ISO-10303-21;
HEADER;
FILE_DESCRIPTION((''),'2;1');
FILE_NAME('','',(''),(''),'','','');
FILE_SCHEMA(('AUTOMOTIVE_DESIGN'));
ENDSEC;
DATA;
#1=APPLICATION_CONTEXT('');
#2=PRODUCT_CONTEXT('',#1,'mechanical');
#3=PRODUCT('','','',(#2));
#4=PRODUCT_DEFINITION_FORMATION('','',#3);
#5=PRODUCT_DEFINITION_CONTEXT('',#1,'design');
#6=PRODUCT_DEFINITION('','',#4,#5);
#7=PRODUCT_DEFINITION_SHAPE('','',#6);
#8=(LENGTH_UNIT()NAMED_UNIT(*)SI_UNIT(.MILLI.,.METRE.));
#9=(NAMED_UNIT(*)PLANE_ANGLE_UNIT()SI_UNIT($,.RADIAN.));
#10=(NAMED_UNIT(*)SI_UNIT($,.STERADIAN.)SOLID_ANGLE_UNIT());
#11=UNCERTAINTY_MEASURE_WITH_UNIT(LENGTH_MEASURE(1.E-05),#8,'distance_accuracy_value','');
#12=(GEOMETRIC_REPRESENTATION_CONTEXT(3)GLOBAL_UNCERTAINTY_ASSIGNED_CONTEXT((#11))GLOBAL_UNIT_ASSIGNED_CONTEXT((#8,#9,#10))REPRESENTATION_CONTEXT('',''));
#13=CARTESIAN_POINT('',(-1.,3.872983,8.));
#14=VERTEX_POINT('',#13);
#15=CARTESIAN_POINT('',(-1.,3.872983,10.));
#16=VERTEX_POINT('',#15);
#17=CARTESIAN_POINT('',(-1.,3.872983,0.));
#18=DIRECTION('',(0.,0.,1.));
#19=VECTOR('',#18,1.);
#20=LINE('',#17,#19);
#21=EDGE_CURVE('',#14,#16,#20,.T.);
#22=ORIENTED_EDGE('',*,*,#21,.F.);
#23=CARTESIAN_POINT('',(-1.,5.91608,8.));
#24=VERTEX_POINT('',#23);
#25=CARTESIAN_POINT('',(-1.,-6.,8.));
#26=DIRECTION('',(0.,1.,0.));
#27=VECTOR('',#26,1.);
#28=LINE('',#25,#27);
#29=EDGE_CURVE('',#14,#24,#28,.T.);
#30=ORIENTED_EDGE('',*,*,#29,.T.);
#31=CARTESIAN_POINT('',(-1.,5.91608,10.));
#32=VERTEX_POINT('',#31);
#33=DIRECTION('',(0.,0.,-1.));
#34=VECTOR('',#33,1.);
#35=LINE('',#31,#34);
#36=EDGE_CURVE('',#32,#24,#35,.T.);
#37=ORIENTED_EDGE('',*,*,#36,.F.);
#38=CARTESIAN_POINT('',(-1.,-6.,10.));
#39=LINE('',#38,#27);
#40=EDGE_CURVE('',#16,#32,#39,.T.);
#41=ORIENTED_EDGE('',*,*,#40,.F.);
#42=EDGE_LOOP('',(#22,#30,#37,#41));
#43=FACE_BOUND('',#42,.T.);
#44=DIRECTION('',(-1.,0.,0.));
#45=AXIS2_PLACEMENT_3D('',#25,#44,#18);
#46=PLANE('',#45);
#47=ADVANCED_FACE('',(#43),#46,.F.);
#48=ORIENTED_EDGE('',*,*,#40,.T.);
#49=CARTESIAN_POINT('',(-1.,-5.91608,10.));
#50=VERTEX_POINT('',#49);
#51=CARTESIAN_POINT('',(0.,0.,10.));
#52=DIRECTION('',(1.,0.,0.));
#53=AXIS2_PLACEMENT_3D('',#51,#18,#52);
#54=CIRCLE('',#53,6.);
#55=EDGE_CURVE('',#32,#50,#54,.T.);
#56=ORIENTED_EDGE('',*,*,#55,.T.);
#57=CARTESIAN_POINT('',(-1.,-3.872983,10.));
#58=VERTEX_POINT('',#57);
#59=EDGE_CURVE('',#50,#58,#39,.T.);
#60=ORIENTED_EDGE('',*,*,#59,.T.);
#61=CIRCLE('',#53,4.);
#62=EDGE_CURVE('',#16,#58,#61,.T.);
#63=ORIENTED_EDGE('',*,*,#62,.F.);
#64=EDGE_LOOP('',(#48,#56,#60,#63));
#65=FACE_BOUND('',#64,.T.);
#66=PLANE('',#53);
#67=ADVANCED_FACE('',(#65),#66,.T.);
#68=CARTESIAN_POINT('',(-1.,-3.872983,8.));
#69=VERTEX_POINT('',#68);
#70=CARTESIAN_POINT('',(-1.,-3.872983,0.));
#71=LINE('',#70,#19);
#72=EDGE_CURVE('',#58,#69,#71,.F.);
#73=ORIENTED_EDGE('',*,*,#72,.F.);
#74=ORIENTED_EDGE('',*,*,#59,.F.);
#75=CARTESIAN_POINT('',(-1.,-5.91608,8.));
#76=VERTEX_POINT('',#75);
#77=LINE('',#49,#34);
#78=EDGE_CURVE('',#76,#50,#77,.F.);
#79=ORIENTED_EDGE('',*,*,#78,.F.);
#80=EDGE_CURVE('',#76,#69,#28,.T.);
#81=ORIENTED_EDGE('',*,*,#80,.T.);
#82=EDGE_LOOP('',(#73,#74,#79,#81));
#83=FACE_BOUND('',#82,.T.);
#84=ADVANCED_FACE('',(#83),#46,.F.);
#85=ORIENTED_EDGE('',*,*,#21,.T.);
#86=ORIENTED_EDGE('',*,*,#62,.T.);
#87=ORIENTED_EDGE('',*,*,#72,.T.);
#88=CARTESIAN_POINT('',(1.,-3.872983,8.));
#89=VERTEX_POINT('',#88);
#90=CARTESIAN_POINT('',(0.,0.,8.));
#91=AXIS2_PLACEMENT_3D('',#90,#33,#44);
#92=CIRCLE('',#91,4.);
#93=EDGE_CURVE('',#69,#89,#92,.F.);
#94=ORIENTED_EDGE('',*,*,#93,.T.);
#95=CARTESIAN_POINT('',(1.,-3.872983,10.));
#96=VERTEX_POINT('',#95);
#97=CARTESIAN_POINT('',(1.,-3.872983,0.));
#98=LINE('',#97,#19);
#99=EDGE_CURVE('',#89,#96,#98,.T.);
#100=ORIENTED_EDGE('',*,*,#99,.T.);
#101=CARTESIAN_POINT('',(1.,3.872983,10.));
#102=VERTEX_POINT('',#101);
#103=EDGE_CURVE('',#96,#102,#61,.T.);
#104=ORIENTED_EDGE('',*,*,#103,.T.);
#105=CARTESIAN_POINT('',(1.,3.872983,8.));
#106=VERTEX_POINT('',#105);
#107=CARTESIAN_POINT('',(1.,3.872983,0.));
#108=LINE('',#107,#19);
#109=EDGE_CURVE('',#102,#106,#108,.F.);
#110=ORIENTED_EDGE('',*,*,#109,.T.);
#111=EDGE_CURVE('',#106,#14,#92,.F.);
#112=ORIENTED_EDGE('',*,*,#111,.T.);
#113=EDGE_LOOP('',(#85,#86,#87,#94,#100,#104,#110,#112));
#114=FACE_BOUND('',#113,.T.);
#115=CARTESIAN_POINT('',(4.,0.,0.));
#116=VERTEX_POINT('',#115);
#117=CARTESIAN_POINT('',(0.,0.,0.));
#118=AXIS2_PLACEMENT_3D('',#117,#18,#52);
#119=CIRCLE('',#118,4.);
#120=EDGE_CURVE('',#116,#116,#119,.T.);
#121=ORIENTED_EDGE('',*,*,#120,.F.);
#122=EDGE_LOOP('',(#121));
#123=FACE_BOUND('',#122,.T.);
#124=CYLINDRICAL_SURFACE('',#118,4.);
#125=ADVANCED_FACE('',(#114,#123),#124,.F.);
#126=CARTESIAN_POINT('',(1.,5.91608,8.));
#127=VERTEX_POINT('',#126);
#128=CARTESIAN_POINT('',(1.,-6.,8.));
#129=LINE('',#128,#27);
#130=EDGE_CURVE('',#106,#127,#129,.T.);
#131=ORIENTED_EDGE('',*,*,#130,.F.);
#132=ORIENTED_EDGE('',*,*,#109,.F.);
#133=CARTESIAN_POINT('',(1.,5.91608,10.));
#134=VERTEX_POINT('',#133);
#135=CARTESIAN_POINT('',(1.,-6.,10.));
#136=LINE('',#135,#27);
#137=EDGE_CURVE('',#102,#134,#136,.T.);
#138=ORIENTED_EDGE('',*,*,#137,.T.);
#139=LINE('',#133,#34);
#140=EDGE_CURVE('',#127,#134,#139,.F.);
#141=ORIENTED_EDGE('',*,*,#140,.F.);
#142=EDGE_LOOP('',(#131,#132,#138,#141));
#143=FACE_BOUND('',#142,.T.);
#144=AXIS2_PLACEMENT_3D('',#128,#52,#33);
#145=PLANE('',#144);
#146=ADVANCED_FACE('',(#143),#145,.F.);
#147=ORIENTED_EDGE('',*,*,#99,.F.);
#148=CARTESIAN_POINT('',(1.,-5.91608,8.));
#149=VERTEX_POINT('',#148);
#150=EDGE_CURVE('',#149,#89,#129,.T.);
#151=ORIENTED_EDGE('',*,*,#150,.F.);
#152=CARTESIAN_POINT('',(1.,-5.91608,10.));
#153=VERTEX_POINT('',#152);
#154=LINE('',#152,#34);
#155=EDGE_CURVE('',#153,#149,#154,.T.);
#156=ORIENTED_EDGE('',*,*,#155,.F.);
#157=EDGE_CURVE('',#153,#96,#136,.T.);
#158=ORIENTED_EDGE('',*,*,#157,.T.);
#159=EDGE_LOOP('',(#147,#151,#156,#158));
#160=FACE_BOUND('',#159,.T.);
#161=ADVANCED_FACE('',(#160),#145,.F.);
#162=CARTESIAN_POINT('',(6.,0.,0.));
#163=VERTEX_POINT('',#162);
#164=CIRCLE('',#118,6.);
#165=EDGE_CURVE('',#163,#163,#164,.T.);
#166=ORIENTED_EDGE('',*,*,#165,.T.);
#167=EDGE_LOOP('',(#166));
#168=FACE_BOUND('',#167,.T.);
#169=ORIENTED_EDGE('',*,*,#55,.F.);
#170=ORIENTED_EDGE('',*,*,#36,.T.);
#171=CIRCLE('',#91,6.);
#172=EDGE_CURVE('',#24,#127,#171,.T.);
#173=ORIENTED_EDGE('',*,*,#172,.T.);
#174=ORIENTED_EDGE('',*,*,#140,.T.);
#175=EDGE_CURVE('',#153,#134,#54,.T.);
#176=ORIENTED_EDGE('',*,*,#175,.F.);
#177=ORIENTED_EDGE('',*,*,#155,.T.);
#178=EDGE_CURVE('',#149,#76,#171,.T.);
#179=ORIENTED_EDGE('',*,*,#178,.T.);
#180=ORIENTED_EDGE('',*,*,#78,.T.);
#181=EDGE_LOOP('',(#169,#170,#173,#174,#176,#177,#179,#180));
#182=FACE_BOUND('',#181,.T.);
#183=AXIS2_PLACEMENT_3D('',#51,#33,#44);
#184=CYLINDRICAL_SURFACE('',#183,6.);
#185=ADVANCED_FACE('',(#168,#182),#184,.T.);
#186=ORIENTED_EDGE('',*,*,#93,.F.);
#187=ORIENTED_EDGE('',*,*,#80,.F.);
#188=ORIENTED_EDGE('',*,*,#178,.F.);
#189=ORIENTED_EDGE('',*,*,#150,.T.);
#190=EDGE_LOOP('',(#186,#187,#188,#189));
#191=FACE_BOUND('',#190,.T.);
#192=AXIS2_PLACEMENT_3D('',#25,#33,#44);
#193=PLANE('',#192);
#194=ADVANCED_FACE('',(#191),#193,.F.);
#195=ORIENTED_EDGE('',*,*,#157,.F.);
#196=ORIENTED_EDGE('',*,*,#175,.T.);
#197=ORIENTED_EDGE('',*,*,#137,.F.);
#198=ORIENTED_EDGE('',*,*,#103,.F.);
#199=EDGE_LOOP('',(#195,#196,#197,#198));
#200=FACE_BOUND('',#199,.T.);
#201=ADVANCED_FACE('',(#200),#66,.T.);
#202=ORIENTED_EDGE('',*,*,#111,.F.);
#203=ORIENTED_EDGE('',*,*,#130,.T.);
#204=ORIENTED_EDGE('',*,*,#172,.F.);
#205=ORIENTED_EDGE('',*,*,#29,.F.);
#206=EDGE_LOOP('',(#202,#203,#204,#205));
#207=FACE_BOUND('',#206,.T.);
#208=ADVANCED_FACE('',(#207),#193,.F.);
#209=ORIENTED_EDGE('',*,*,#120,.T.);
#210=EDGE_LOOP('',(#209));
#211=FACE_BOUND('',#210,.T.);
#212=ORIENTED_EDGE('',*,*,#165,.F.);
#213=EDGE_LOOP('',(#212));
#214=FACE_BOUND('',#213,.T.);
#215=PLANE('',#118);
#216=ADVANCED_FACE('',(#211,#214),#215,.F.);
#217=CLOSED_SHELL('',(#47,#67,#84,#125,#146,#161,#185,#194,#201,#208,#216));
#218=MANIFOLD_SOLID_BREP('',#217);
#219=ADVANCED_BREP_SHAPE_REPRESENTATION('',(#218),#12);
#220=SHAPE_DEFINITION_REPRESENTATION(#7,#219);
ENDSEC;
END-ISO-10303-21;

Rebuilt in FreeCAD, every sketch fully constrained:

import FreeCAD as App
import Part
import Sketcher

V = App.Vector


def add_polygon(sketch, points):
    """Adds a closed chain of lines whose ends are joined by coincident constraints."""
    first, n = sketch.GeometryCount, len(points)
    for a, b in zip(points, points[1:] + points[:1]):
        sketch.addGeometry(Part.LineSegment(App.Vector(*a, 0), App.Vector(*b, 0)), False)
    for i in range(n):
        sketch.addConstraint(Sketcher.Constraint("Coincident", first + i, 2, first + (i + 1) % n, 1))

doc = App.newDocument("Part")
body = doc.addObject("PartDesign::Body", "Body")

sketch1 = body.newObject("Sketcher::SketchObject", "Sketch")
sketch1.AttachmentSupport = (doc.getObject("XY_Plane"), [""])
sketch1.MapMode = "FlatFace"
sketch1.addGeometry(Part.Circle(V(0, 0, 0), V(0, 0, 1), 6), False)
sketch1.addConstraint([
    Sketcher.Constraint("Coincident", 0, 3, -1, 1),
    Sketcher.Constraint("Diameter", 0, 12.0),
])
pad1 = body.newObject("PartDesign::Pad", "Pad")
pad1.Profile = sketch1
pad1.Length = 10

sketch2 = body.newObject("Sketcher::SketchObject", "Sketch001")
sketch2.AttachmentSupport = (doc.getObject("XY_Plane"), [""])
sketch2.MapMode = "FlatFace"
sketch2.AttachmentOffset = App.Placement(V(0, 0, 10), App.Rotation())
sketch2.addGeometry(Part.Circle(V(0, 0, 0), V(0, 0, 1), 4), False)
sketch2.addConstraint([
    Sketcher.Constraint("Coincident", 0, 3, -1, 1),
    Sketcher.Constraint("Diameter", 0, 8.0),
])
pocket1 = body.newObject("PartDesign::Pocket", "Pocket")
pocket1.Profile = sketch2
pocket1.Type = "ThroughAll"

sketch3 = body.newObject("Sketcher::SketchObject", "Sketch002")
sketch3.AttachmentSupport = (doc.getObject("XZ_Plane"), [""])
sketch3.MapMode = "FlatFace"
add_polygon(sketch3, [(-1, 8), (-1, 10), (1, 10), (1, 8)])
sketch3.addConstraint([
    Sketcher.Constraint("Vertical", 0),
    Sketcher.Constraint("Horizontal", 1),
    Sketcher.Constraint("Vertical", 2),
    Sketcher.Constraint("Horizontal", 3),
    Sketcher.Constraint("Equal", 3, 0),
    Sketcher.Constraint("DistanceX", 1, 1, 1, 2, 2.0),
    Sketcher.Constraint("DistanceX", 0, 2, -1, 1, 1.0),
    Sketcher.Constraint("DistanceY", -1, 1, 0, 2, 10.0),
])
pocket2 = body.newObject("PartDesign::Pocket", "Pocket001")
pocket2.Profile = sketch3
pocket2.Type = "ThroughAll"
pocket2.Midplane = True

doc.recompute()
